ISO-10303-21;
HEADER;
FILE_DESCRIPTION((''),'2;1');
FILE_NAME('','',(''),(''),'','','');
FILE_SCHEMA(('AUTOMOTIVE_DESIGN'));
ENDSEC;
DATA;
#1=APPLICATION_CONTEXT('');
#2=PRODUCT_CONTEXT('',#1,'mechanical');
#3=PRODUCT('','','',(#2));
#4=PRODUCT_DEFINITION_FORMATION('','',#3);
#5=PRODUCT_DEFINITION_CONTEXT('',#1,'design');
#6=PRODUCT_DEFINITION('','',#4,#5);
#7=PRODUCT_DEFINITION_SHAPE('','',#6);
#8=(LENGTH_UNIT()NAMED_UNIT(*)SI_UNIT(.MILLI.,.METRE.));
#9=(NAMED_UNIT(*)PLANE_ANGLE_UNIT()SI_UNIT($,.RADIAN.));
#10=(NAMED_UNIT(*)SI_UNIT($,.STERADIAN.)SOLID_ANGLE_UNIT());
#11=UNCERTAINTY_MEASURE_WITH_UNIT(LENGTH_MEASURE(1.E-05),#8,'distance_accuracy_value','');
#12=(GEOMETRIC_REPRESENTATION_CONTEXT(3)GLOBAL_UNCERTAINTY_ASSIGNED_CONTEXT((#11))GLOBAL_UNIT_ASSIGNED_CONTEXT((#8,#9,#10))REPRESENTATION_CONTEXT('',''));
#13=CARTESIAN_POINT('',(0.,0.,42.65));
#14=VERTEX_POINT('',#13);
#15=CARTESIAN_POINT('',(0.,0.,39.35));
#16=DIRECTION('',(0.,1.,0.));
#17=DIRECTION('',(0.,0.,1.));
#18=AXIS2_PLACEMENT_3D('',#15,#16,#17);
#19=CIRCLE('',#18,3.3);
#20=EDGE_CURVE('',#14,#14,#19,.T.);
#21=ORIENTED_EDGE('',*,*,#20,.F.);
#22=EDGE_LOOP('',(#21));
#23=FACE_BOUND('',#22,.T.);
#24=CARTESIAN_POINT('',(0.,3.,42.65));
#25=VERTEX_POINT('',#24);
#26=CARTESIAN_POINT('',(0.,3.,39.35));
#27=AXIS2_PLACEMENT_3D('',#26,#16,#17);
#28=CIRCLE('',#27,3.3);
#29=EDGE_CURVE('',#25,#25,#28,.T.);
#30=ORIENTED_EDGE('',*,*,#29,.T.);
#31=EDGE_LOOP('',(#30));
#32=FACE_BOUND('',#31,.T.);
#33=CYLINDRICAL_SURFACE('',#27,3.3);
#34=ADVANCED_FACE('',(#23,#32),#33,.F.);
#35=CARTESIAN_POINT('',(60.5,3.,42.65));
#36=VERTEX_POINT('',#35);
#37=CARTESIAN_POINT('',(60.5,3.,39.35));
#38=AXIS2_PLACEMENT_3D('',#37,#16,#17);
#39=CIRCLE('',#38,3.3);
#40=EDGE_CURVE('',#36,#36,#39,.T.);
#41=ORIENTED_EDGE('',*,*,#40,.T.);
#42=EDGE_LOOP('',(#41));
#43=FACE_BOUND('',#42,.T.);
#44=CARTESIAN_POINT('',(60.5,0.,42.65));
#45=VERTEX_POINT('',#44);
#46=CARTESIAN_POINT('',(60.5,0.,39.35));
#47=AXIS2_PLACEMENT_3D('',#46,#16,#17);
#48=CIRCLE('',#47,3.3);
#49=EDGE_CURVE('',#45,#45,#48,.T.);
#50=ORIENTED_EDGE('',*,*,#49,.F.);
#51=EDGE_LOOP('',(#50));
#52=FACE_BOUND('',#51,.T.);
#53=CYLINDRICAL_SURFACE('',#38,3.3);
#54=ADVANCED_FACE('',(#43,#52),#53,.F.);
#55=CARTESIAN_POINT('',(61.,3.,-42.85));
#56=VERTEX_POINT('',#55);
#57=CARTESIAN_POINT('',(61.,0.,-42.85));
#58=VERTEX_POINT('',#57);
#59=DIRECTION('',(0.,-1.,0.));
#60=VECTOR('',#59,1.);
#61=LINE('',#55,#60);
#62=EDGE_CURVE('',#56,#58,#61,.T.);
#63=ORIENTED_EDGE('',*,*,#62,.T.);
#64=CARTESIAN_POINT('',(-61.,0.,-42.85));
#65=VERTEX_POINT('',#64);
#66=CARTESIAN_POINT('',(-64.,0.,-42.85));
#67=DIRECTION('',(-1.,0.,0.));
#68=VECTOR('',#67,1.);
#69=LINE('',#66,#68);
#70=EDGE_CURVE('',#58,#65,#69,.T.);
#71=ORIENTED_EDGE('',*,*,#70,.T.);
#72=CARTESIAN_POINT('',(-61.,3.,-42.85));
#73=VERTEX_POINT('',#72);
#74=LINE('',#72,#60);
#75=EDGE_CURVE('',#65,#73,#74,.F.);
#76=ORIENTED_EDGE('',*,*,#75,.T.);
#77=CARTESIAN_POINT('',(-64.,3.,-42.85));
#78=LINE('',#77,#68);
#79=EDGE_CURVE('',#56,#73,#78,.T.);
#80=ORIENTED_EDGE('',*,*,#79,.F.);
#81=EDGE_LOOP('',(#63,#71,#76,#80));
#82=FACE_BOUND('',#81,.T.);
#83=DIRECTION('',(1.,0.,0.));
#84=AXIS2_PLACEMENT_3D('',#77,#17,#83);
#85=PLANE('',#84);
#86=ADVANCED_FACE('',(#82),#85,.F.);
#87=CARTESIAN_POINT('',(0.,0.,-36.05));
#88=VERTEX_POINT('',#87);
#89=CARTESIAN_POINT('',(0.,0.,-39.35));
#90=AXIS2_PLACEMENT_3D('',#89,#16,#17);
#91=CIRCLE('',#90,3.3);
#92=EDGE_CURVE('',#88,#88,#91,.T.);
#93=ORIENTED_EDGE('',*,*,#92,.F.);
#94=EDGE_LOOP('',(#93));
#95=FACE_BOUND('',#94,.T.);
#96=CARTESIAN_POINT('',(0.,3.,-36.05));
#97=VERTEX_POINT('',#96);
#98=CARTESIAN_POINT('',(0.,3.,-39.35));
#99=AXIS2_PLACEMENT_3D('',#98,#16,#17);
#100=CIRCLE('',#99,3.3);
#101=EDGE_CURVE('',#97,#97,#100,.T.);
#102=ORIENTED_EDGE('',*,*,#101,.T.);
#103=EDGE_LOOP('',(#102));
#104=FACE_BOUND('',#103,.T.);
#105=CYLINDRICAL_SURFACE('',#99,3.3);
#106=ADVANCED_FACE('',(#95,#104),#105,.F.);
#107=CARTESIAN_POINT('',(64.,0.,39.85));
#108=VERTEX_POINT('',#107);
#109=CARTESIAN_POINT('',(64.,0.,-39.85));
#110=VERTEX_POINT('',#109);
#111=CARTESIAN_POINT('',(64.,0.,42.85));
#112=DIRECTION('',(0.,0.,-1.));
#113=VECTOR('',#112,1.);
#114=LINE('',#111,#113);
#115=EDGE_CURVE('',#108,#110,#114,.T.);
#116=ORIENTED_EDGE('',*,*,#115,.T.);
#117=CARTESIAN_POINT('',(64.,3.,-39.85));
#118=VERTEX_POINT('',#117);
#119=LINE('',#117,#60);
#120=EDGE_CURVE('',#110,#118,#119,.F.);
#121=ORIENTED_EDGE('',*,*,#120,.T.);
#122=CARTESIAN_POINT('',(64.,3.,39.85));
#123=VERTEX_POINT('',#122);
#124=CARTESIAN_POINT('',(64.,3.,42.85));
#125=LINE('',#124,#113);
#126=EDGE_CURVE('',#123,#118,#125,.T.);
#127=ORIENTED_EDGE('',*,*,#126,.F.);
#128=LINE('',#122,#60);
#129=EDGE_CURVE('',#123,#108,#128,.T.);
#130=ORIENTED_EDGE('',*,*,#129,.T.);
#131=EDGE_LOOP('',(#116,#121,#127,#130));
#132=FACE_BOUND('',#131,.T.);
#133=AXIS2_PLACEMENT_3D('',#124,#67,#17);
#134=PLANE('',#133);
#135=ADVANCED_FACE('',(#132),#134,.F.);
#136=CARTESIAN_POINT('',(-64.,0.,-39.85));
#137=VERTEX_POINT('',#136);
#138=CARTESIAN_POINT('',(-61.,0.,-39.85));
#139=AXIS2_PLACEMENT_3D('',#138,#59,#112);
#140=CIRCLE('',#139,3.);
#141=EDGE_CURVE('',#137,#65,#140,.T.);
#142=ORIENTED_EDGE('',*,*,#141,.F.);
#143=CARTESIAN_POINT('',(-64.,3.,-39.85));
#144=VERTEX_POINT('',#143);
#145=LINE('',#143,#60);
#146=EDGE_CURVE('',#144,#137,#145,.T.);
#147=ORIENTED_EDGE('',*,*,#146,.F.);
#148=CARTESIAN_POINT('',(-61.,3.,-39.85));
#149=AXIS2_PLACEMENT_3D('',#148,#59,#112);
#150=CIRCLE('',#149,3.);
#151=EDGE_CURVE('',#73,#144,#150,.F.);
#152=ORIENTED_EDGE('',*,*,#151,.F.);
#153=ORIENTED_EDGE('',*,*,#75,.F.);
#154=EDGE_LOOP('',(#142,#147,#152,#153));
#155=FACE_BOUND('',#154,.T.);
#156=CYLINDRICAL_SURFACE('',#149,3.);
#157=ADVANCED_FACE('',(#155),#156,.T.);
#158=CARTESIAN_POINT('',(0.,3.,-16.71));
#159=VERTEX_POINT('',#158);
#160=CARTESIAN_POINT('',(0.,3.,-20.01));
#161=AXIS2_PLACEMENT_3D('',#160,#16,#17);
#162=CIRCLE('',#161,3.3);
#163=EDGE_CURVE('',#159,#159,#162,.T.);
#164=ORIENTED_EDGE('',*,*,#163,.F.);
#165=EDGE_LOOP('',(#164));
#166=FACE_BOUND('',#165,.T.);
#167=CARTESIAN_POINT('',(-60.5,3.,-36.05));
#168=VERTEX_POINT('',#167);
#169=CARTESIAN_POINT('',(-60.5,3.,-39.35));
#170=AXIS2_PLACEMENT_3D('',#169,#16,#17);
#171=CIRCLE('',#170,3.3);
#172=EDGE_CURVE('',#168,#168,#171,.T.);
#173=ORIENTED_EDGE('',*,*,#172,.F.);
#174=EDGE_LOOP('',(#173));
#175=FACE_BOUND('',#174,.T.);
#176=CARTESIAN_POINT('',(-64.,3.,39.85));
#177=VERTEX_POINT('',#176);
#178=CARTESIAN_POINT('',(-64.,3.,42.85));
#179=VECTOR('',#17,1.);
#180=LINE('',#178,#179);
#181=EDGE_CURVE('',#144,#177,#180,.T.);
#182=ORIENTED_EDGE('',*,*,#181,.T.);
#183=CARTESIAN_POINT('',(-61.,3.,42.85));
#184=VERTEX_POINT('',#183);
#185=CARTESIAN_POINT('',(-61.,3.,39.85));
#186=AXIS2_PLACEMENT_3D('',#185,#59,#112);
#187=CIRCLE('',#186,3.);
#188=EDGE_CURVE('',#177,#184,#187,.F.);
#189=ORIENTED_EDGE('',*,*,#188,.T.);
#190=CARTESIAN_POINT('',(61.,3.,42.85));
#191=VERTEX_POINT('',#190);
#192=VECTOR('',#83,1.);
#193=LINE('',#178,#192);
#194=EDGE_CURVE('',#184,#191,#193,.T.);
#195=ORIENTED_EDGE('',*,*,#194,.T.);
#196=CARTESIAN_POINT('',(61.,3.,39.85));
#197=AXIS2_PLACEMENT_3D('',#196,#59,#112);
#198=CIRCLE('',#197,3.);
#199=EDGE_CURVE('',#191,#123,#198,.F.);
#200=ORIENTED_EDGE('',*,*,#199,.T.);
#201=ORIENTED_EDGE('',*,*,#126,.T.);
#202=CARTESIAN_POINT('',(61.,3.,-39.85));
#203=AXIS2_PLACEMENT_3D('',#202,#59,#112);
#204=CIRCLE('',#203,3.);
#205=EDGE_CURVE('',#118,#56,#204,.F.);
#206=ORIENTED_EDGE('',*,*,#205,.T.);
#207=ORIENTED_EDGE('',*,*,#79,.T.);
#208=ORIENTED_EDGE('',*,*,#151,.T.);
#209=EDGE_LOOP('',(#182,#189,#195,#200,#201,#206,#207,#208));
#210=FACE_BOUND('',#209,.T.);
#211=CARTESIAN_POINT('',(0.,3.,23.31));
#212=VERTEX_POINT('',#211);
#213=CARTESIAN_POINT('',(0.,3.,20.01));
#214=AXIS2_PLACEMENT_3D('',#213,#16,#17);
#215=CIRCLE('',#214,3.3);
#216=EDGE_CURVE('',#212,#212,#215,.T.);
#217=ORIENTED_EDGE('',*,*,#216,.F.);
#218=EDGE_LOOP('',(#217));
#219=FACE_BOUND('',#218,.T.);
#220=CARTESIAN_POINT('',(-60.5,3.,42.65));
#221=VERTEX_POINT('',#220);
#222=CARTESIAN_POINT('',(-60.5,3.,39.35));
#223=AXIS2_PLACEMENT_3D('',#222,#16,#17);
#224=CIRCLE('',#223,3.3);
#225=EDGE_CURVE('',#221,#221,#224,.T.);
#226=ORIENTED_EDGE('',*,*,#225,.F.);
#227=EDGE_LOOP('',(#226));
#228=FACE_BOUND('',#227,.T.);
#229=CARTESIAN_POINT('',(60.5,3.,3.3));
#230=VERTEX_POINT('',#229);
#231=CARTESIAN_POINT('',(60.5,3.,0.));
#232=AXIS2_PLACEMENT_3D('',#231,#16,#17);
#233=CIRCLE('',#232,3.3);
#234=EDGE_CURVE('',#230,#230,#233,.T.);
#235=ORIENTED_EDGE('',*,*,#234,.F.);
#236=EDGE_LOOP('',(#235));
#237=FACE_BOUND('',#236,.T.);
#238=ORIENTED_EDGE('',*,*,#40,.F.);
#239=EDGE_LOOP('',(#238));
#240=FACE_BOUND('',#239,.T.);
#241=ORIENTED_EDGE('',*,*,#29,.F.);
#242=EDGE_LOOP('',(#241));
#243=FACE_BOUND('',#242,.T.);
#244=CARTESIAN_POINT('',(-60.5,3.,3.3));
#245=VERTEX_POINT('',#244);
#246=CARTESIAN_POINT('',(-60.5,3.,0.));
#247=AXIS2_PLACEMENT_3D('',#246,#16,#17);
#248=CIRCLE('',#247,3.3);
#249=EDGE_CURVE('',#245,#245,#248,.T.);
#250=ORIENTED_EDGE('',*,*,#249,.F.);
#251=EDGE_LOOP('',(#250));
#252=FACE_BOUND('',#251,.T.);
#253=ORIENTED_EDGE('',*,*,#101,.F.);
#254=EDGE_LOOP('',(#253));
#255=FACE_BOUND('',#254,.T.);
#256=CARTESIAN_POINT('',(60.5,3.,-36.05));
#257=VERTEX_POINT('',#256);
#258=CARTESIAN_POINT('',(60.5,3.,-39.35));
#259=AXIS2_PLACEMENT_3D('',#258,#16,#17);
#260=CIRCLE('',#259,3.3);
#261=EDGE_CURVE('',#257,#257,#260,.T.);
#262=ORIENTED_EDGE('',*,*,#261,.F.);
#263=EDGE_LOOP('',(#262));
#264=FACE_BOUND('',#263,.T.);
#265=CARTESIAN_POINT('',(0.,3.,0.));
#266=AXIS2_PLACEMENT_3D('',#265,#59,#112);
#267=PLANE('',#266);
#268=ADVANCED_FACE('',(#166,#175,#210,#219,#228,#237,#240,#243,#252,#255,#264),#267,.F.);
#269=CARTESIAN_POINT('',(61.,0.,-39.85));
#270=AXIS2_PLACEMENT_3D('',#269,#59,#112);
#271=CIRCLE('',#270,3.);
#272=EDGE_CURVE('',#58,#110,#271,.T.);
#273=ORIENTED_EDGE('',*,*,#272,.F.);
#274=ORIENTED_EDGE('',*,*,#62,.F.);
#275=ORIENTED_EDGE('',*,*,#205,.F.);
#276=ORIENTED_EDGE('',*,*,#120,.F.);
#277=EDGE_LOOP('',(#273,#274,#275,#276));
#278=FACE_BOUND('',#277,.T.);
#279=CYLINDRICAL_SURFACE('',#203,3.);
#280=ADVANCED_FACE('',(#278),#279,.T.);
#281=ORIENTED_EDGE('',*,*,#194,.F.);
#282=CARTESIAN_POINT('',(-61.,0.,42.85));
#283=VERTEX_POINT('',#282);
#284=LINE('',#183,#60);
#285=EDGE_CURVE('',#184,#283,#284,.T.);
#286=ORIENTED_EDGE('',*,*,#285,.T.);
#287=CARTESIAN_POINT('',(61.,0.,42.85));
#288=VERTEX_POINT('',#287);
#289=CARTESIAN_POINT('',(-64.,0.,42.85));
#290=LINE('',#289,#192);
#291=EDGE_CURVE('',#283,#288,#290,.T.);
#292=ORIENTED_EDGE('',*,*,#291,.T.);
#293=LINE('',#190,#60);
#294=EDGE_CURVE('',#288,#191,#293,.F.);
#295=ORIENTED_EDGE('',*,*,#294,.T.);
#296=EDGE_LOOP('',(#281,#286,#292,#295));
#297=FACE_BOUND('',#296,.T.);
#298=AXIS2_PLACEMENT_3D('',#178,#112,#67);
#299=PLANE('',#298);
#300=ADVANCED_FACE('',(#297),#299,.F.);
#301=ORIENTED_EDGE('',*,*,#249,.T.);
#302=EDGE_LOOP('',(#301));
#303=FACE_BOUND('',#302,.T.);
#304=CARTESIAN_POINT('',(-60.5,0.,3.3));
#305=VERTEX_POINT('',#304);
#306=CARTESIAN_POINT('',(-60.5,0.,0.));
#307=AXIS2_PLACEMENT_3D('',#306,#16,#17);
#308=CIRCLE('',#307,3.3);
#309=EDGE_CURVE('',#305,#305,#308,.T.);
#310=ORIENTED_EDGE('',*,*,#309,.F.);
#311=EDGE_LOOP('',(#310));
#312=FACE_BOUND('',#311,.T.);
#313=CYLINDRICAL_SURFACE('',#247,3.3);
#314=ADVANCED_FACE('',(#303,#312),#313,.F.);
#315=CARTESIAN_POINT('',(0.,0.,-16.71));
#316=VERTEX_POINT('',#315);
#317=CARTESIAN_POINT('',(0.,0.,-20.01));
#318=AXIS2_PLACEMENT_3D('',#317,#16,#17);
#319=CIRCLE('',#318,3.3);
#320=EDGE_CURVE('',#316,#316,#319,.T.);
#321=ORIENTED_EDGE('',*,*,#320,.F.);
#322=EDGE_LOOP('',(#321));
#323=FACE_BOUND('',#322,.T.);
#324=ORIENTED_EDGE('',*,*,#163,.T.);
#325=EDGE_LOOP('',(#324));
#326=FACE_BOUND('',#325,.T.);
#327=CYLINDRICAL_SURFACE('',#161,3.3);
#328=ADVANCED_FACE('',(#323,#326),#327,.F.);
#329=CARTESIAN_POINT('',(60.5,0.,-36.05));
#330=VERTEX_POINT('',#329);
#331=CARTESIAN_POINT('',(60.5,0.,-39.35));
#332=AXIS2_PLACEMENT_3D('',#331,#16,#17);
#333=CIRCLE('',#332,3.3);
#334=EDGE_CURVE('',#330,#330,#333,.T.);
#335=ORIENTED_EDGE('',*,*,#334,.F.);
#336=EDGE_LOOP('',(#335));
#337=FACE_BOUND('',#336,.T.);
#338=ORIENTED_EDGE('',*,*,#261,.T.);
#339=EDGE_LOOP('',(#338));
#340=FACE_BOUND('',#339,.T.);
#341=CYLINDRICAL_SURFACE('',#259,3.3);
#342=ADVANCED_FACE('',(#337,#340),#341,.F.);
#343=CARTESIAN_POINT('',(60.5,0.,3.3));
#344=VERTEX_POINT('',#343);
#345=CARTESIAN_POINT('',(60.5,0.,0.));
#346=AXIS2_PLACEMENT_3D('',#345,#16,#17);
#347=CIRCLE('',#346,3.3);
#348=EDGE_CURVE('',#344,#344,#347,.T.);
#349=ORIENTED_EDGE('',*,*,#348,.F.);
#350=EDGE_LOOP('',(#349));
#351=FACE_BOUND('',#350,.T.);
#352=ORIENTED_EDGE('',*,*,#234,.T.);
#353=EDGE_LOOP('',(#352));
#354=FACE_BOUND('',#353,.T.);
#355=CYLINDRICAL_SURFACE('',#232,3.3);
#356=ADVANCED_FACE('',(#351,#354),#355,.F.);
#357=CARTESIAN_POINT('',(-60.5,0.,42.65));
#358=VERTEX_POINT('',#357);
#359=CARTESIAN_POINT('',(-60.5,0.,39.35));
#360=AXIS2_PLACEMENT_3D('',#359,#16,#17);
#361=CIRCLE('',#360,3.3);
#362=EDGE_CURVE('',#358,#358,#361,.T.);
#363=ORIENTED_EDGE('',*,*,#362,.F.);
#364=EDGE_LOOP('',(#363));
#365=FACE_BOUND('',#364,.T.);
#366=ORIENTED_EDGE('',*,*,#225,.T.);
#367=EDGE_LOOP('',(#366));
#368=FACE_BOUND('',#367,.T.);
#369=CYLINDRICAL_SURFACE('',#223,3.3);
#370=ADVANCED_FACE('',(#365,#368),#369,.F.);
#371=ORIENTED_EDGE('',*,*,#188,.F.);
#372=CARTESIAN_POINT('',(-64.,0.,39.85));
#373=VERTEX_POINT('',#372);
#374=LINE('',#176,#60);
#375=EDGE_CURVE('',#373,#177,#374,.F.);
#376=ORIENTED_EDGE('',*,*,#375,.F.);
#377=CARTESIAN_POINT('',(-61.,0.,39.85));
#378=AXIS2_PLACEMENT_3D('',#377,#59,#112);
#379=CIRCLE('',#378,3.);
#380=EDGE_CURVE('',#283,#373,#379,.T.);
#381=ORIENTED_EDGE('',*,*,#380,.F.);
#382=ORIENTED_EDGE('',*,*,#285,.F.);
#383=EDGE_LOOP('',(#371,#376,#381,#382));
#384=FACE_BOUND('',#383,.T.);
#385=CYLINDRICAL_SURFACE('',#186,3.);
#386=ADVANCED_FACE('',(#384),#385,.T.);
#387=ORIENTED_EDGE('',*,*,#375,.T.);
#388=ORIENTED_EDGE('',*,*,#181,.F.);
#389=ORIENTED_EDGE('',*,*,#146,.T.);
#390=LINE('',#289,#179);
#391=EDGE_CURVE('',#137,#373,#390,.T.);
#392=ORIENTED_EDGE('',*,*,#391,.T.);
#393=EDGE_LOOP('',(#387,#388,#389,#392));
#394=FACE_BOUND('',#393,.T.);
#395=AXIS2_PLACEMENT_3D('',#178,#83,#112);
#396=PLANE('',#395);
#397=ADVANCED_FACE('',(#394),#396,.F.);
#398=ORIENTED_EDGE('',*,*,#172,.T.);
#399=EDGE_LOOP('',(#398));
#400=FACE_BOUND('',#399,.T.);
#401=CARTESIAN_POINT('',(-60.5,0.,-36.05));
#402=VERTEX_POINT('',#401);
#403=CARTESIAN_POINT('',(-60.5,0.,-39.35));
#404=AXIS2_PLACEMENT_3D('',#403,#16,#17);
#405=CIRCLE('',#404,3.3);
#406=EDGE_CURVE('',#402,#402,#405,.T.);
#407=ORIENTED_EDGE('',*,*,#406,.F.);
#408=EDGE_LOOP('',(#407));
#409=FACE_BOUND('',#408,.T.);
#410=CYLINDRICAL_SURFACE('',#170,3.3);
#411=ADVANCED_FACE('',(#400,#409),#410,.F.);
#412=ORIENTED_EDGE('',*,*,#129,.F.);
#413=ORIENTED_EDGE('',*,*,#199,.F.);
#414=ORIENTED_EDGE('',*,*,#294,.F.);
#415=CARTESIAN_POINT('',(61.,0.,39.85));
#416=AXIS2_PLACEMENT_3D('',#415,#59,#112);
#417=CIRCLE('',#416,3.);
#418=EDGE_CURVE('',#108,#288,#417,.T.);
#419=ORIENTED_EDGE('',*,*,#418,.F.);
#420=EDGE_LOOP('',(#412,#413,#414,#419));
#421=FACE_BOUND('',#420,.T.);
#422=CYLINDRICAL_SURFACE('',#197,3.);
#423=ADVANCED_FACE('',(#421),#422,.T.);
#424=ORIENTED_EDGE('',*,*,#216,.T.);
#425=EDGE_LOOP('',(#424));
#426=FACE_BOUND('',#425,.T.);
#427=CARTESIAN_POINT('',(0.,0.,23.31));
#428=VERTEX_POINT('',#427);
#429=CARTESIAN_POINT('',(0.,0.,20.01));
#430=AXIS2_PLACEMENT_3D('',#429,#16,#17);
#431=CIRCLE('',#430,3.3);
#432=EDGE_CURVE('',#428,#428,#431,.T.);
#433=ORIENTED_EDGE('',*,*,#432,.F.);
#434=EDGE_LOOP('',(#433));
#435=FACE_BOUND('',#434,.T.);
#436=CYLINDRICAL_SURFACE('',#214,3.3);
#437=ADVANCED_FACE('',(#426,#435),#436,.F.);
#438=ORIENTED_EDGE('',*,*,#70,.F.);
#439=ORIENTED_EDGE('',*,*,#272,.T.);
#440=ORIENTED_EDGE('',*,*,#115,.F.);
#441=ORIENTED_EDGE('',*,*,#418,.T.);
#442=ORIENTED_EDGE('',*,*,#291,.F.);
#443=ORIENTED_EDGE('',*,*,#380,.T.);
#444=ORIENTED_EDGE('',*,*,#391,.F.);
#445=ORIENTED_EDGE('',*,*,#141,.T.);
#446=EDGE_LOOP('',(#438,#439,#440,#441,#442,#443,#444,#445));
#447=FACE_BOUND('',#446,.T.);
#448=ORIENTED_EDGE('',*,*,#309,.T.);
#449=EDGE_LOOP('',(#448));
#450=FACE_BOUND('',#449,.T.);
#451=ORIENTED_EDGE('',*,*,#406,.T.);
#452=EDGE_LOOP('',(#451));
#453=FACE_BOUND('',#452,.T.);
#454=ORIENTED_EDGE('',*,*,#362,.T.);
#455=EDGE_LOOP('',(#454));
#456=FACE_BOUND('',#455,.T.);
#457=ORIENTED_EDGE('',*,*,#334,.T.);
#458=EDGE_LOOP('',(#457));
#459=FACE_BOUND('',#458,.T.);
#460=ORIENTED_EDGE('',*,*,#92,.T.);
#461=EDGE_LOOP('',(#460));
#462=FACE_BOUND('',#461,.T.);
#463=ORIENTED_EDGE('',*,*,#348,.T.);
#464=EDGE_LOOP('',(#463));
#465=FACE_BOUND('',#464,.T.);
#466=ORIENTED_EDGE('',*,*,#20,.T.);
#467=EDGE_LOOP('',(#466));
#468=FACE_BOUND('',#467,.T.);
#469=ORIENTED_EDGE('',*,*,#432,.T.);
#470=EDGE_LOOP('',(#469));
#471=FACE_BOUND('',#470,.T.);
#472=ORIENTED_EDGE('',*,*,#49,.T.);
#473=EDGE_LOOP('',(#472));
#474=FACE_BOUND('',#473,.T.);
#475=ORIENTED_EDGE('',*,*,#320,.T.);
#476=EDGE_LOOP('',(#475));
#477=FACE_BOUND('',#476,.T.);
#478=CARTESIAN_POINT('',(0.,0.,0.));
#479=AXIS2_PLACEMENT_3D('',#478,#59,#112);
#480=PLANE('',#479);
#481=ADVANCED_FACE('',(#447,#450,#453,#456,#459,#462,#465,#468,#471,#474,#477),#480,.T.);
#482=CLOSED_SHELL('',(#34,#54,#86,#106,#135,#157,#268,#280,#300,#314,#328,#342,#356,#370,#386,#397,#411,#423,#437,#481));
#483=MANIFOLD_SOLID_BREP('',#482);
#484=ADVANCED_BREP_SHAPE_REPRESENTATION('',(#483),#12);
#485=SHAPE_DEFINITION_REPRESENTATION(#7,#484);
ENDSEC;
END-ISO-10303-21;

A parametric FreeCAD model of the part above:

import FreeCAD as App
import Part
import Sketcher
Q = App.Units.Quantity


def edges_at(feature, points):
    """Names of the edges that pass closest to the given points."""
    edges = feature.Shape.Edges
    near = lambda p: min(range(len(edges)), key=lambda i: edges[i].distToShape(Part.Vertex(*p))[0])
    return sorted({f"Edge{near(p) + 1}" for p in points})


def add_polygon(sketch, points):
    """Adds a closed chain of lines whose ends are joined by coincident constraints."""
    first, n = sketch.GeometryCount, len(points)
    for a, b in zip(points, points[1:] + points[:1]):
        sketch.addGeometry(Part.LineSegment(App.Vector(*a, 0), App.Vector(*b, 0)), False)
    for i in range(n):
        sketch.addConstraint(Sketcher.Constraint("Coincident", first + i, 2, first + (i + 1) % n, 1))

doc = App.newDocument("Part")
body = doc.addObject("PartDesign::Body", "Body")

# Sketch on XZ plane
sketch1 = doc.addObject("Sketcher::SketchObject", "Sketch")
body.addObject(sketch1)
sketch1.AttachmentSupport = (doc.XZ_Plane, [""])
sketch1.MapMode = "FlatFace"
add_polygon(sketch1, [(-64, -42.85), (-64, 42.85), (64, 42.85), (64, -42.85)])  # lines 0-3
sketch1.addConstraint([
    Sketcher.Constraint("Vertical", 0),
    Sketcher.Constraint("Horizontal", 1),
    Sketcher.Constraint("Vertical", 2),
    Sketcher.Constraint("Horizontal", 3),
    Sketcher.Constraint("Symmetric", 0, 2, 2, 2, -1, 1),
    Sketcher.Constraint("DistanceX", 1, 1, 1, 2, Q("128 mm")),
    Sketcher.Constraint("DistanceY", 0, 1, 0, 2, Q("85.7 mm")),
])
pad1 = doc.addObject("PartDesign::Pad", "Pad")
body.addObject(pad1)
pad1.Profile = sketch1
pad1.Length = 3
pad1.Reversed = True

# Sketch on XZ plane
sketch2 = doc.addObject("Sketcher::SketchObject", "Sketch001")
body.addObject(sketch2)
sketch2.AttachmentSupport = (doc.XZ_Plane, [""])
sketch2.MapMode = "FlatFace"
sketch2.AttachmentOffset = App.Placement(App.Vector(0, 0, -3), App.Rotation())
sketch2.addGeometry([
    Part.Circle(App.Vector(-60.5, -39.35, 0), App.Vector(0, 0, 1), 3.3),  # 0
    Part.Circle(App.Vector(0, -39.35, 0), App.Vector(0, 0, 1), 3.3),  # 1
    Part.Circle(App.Vector(60.5, -39.35, 0), App.Vector(0, 0, 1), 3.3),  # 2
    Part.Circle(App.Vector(60.5, 0, 0), App.Vector(0, 0, 1), 3.3),  # 3
    Part.Circle(App.Vector(60.5, 39.35, 0), App.Vector(0, 0, 1), 3.3),  # 4
    Part.Circle(App.Vector(0, 39.35, 0), App.Vector(0, 0, 1), 3.3),  # 5
    Part.Circle(App.Vector(-60.5, 39.35, 0), App.Vector(0, 0, 1), 3.3),  # 6
    Part.Circle(App.Vector(-60.5, 0, 0), App.Vector(0, 0, 1), 3.3),  # 7
    Part.Circle(App.Vector(0, 20.01, 0), App.Vector(0, 0, 1), 3.3),  # 8
    Part.Circle(App.Vector(0, -20.01, 0), App.Vector(0, 0, 1), 3.3),  # 9
], False)
sketch2.addConstraint([
    Sketcher.Constraint("Equal", 0, 1),
    Sketcher.Constraint("Equal", 1, 2),
    Sketcher.Constraint("Equal", 2, 3),
    Sketcher.Constraint("Equal", 3, 4),
    Sketcher.Constraint("Equal", 4, 5),
    Sketcher.Constraint("Equal", 5, 6),
    Sketcher.Constraint("Equal", 6, 7),
    Sketcher.Constraint("Equal", 7, 8),
    Sketcher.Constraint("Equal", 8, 9),
    Sketcher.Constraint("Symmetric", 0, 3, 4, 3, -1, 1),
    Sketcher.Constraint("Symmetric", 1, 3, 5, 3, -1, 1),
    Sketcher.Constraint("Symmetric", 2, 3, 6, 3, -1, 1),
    Sketcher.Constraint("Symmetric", 3, 3, 7, 3, -1, 1),
    Sketcher.Constraint("Symmetric", 8, 3, 9, 3, -1, 1),
    Sketcher.Constraint("Symmetric", 0, 3, 2, 3, -2),
    Sketcher.Constraint("PointOnObject", 1, 3, -2),
    Sketcher.Constraint("PointOnObject", 3, 3, -1),
    Sketcher.Constraint("PointOnObject", 8, 3, -2),
    Sketcher.Constraint("Horizontal", 0, 3, 1, 3),
    Sketcher.Constraint("Vertical", 2, 3, 3, 3),
    Sketcher.Constraint("Diameter", 0, Q("6.6 mm")),
    Sketcher.Constraint("DistanceX", 0, 3, 2, 3, Q("121 mm")),
    Sketcher.Constraint("DistanceY", 2, 3, 4, 3, Q("78.7 mm")),
    Sketcher.Constraint("DistanceY", -1, 1, 8, 3, Q("20.01 mm")),
])
doc.recompute()
hole = doc.addObject("PartDesign::Hole", "Hole")
body.addObject(hole)
hole.Profile = sketch2
hole.ThreadType = "None"
hole.Diameter = 6.6
hole.DepthType = "ThroughAll"
hole.Reversed = True
doc.recompute()

fillet = doc.addObject("PartDesign::Fillet", "Fillet")
body.addObject(fillet)
fillet.Base = (hole, edges_at(hole, [
    (64, 1.5, 42.85),
    (-64, 1.5, 42.85),
    (-64, 1.5, -42.85),
    (64, 1.5, -42.85),
]))
fillet.Radius = 3

doc.recompute()
